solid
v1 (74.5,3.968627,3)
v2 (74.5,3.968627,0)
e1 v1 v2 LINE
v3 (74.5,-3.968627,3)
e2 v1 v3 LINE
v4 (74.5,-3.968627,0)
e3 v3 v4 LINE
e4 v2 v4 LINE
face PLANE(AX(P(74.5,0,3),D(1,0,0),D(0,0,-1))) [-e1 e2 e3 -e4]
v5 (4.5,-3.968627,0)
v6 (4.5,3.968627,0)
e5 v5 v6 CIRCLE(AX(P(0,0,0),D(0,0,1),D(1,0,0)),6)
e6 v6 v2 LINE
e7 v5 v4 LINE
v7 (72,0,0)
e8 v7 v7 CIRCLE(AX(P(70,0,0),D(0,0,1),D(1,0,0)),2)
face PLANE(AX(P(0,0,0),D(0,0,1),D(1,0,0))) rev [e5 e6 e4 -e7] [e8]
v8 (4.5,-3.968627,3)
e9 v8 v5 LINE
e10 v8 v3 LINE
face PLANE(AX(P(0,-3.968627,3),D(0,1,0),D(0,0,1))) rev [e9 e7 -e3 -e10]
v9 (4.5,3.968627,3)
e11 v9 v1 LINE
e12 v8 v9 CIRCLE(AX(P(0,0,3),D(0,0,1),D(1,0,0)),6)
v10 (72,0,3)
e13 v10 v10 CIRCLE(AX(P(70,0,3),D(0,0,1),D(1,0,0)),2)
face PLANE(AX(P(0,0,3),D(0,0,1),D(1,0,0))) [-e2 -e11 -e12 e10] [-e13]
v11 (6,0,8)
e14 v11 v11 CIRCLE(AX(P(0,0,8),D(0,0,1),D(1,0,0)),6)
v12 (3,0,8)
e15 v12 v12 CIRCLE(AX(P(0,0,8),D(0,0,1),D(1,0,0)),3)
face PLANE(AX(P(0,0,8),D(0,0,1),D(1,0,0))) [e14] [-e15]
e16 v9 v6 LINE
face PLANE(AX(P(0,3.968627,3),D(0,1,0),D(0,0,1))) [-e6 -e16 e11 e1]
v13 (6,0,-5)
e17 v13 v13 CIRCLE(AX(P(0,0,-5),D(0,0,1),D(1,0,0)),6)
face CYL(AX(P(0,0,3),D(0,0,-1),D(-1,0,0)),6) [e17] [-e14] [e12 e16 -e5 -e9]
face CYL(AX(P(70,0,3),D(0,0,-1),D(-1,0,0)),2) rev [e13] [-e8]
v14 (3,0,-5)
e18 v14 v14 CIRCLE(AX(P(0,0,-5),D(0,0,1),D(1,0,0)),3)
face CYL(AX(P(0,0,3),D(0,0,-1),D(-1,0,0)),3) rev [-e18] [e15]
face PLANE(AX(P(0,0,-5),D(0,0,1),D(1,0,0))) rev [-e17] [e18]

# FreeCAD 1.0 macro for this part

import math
import FreeCAD as App
import Part
import Sketcher
from FreeCAD import Vector

doc = App.newDocument("Part")
body = doc.addObject("PartDesign::Body", "Body")

# Sketch on XY plane
sketch1 = doc.addObject("Sketcher::SketchObject", "Sketch")
body.addObject(sketch1)
sketch1.AttachmentSupport = (doc.XY_Plane, [""])
sketch1.MapMode = "FlatFace"
sketch1.addGeometry(Part.LineSegment(Vector(4.5, -4, 0), Vector(74.5, -4, 0)), False)
sketch1.addGeometry(Part.LineSegment(Vector(74.5, -4, 0), Vector(74.5, 4, 0)), False)
sketch1.addGeometry(Part.LineSegment(Vector(74.5, 4, 0), Vector(4.5, 4, 0)), False)
sketch1.addGeometry(Part.ArcOfCircle(Part.Circle(Vector(0, 0, 0), Vector(0, 0, 1), 6), math.radians(41), math.radians(319)), False)
sketch1.addGeometry(Part.Circle(Vector(0, 0, 0), Vector(0, 0, 1), 3), False)
sketch1.addGeometry(Part.Circle(Vector(70, 0, 0), Vector(0, 0, 1), 2), False)
sketch1.addConstraint(Sketcher.Constraint("Coincident", 0, 2, 1, 1))
sketch1.addConstraint(Sketcher.Constraint("Coincident", 1, 2, 2, 1))
sketch1.addConstraint(Sketcher.Constraint("Coincident", 2, 2, 3, 1))
sketch1.addConstraint(Sketcher.Constraint("Coincident", 3, 2, 0, 1))
sketch1.addConstraint(Sketcher.Constraint("Horizontal", 0))
sketch1.addConstraint(Sketcher.Constraint("Vertical", 1))
sketch1.addConstraint(Sketcher.Constraint("Horizontal", 2))
sketch1.addConstraint(Sketcher.Constraint("Coincident", 3, 3, -1, 1))
sketch1.addConstraint(Sketcher.Constraint("Coincident", 4, 3, -1, 1))
sketch1.addConstraint(Sketcher.Constraint("PointOnObject", 5, 3, -1))
sketch1.addConstraint(Sketcher.Constraint("Vertical", 2, 2, 3, 2))
sketch1.addConstraint(Sketcher.Constraint("Diameter", 4, 6.0))
sketch1.addConstraint(Sketcher.Constraint("Diameter", 5, 4.0))
sketch1.addConstraint(Sketcher.Constraint("Radius", 3, 6.0))
sketch1.addConstraint(Sketcher.Constraint("DistanceX", 0, 1, 0, 2, 70.0))
sketch1.addConstraint(Sketcher.Constraint("DistanceX", -1, 1, 5, 3, 70.0))
sketch1.addConstraint(Sketcher.Constraint("DistanceX", -1, 1, 0, 2, 74.5))
pad1 = doc.addObject("PartDesign::Pad", "Pad")
body.addObject(pad1)
pad1.Profile = sketch1
pad1.Length = 3

# Sketch on XY plane
sketch2 = doc.addObject("Sketcher::SketchObject", "Sketch001")
body.addObject(sketch2)
sketch2.AttachmentSupport = (doc.XY_Plane, [""])
sketch2.MapMode = "FlatFace"
sketch2.AttachmentOffset = App.Placement(Vector(0, 0, 3), App.Rotation())
sketch2.addGeometry(Part.Circle(Vector(0, 0, 0), Vector(0, 0, 1), 6), False)
sketch2.addGeometry(Part.Circle(Vector(0, 0, 0), Vector(0, 0, 1), 3), False)
sketch2.addConstraint(Sketcher.Constraint("Coincident", 0, 3, -1, 1))
sketch2.addConstraint(Sketcher.Constraint("Coincident", 1, 3, -1, 1))
sketch2.addConstraint(Sketcher.Constraint("Diameter", 0, 12.0))
sketch2.addConstraint(Sketcher.Constraint("Diameter", 1, 6.0))
pad2 = doc.addObject("PartDesign::Pad", "Pad001")
body.addObject(pad2)
pad2.Profile = sketch2
pad2.Type = "TwoLengths"
pad2.Length = 5
pad2.Length2 = 8

doc.recompute()
